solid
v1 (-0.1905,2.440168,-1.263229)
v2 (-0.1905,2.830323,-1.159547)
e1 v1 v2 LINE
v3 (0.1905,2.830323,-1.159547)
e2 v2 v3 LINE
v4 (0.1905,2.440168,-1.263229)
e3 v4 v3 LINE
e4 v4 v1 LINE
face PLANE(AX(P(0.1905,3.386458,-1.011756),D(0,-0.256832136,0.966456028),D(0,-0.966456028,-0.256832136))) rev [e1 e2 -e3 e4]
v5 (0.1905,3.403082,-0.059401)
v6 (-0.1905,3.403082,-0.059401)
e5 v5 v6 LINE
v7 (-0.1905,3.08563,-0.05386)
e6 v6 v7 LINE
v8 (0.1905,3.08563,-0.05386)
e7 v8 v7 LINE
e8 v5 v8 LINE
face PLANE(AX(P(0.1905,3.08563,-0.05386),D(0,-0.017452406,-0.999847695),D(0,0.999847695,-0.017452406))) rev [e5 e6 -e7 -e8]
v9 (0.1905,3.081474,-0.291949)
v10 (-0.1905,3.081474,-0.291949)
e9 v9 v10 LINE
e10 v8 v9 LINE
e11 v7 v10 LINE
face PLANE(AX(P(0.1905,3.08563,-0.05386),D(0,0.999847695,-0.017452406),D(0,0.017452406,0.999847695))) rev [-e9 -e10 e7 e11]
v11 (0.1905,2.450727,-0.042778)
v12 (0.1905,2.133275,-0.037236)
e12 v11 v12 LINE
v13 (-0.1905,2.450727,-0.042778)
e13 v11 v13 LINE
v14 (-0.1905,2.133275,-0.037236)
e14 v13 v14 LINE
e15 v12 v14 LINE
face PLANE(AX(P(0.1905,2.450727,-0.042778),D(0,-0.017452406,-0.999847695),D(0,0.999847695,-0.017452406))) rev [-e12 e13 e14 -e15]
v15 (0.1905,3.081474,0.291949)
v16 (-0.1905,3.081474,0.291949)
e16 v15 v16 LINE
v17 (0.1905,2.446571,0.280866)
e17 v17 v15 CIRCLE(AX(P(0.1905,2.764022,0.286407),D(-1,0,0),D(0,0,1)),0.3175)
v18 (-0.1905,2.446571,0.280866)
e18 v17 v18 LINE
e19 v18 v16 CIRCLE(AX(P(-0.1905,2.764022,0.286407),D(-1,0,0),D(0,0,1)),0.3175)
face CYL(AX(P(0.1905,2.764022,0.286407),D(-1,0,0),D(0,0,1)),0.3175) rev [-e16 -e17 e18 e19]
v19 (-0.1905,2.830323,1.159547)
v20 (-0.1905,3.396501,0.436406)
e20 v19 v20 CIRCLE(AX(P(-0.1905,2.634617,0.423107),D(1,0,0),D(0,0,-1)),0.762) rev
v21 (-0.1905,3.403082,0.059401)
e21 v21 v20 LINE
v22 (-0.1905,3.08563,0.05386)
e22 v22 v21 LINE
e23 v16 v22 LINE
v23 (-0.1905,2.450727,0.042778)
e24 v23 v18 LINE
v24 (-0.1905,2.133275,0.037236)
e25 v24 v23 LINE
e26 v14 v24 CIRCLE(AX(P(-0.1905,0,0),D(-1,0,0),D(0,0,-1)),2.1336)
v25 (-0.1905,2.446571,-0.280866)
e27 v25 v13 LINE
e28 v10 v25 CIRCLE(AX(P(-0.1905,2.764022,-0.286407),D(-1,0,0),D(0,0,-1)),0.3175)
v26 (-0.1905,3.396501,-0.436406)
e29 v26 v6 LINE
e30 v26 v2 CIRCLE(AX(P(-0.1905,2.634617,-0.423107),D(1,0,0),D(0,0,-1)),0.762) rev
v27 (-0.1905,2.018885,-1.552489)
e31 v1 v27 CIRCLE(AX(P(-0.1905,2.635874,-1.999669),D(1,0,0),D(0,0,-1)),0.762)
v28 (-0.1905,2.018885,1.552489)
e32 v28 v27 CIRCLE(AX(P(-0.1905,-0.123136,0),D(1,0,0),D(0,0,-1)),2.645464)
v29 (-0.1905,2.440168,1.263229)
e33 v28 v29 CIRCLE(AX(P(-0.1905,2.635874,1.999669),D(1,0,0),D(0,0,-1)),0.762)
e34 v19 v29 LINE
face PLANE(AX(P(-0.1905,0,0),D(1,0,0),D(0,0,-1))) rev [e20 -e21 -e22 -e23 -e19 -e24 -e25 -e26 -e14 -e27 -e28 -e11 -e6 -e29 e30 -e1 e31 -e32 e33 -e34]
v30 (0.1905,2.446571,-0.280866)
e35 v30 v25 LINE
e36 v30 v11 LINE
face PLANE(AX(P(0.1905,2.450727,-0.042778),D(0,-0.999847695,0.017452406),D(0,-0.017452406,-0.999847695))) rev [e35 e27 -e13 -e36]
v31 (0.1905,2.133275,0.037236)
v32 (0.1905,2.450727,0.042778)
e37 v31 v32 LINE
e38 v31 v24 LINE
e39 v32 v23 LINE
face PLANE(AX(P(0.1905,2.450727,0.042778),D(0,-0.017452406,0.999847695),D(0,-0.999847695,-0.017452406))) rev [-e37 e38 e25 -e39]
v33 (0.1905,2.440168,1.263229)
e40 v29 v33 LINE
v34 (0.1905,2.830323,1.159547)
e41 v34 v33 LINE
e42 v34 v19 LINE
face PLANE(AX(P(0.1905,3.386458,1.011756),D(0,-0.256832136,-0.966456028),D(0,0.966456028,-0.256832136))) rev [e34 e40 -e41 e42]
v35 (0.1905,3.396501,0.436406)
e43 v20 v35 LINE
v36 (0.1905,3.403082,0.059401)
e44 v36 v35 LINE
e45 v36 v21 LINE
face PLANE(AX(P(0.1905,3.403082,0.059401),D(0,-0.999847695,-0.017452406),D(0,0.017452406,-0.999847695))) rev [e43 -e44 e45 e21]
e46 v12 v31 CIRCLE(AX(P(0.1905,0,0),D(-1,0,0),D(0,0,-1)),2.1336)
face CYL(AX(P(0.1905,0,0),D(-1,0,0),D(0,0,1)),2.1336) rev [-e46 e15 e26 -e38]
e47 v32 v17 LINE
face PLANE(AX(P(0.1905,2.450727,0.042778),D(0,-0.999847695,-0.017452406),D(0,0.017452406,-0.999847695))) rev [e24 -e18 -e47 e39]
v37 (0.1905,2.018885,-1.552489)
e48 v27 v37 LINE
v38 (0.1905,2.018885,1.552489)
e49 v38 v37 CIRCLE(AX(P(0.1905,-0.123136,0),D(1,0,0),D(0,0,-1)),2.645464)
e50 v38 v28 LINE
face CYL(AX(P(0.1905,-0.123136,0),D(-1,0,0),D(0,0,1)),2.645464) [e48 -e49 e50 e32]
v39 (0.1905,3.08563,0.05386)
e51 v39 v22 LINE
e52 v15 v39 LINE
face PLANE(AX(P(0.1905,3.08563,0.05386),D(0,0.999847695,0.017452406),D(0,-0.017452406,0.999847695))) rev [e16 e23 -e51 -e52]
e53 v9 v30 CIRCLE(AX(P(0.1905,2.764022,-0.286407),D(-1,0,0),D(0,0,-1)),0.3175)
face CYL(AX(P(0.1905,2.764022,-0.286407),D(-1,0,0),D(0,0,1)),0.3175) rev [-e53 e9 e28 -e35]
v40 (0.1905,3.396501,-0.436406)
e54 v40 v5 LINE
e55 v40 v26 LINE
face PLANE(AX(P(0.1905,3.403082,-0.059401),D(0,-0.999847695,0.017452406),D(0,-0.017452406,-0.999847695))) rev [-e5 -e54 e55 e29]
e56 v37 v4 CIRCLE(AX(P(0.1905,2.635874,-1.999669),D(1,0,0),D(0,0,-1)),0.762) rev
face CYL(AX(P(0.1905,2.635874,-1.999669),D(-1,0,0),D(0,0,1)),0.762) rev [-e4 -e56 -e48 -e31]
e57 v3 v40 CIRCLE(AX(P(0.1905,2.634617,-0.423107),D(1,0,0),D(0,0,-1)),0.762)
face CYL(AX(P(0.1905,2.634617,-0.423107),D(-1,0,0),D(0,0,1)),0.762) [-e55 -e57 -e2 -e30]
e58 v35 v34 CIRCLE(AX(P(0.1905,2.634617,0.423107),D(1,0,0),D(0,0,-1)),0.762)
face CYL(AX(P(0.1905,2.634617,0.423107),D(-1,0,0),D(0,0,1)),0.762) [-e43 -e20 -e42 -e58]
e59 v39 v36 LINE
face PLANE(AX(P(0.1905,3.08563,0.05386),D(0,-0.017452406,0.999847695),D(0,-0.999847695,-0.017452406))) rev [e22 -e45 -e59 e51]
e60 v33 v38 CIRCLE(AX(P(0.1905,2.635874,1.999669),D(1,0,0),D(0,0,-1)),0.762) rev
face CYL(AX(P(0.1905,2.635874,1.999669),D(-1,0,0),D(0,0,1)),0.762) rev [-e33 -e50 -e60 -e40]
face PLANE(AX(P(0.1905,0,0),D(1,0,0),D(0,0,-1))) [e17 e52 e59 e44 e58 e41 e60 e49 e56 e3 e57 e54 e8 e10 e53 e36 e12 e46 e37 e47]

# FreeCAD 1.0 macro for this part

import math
import FreeCAD as App
import Part
import Sketcher

V = App.Vector
Q = App.Units.Quantity


def edges_at(feature, points):
    """Names of the edges that pass closest to the given points."""
    edges = feature.Shape.Edges
    near = lambda p: min(range(len(edges)), key=lambda i: edges[i].distToShape(Part.Vertex(*p))[0])
    return sorted({f"Edge{near(p) + 1}" for p in points})

doc = App.newDocument("Part")
body = doc.addObject("PartDesign::Body", "Body")

# Sketch on YZ plane
sketch1 = doc.addObject("Sketcher::SketchObject", "Sketch")
body.addObject(sketch1)
sketch1.AttachmentSupport = (doc.YZ_Plane, [""])
sketch1.MapMode = "FlatFace"
sketch1.addGeometry(Part.LineSegment(V(3.386458, -1.011756, 0), V(3.403082, -0.059401, 0)), False)
sketch1.addGeometry(Part.LineSegment(V(3.403082, -0.059401, 0), V(3.08563, -0.05386, 0)), False)
sketch1.addGeometry(Part.LineSegment(V(3.08563, -0.05386, 0), V(3.081474, -0.291949, 0)), False)
sketch1.addGeometry(Part.ArcOfCircle(Part.Circle(V(2.764022, -0.286407, 0), V(0, 0, 1), 0.3175), math.radians(179), math.radians(359)), False)
sketch1.addGeometry(Part.LineSegment(V(2.446571, -0.280866, 0), V(2.450727, -0.042778, 0)), False)
sketch1.addGeometry(Part.LineSegment(V(2.450727, -0.042778, 0), V(2.133275, -0.037236, 0)), False)
sketch1.addGeometry(Part.ArcOfCircle(Part.Circle(V(0, 0, 0), V(0, 0, 1), 2.1336), math.radians(1), math.radians(359)), False)
sketch1.addGeometry(Part.LineSegment(V(2.133275, 0.037236, 0), V(2.450727, 0.042778, 0)), False)
sketch1.addGeometry(Part.LineSegment(V(2.450727, 0.042778, 0), V(2.446571, 0.280866, 0)), False)
sketch1.addGeometry(Part.ArcOfCircle(Part.Circle(V(2.764022, 0.286407, 0), V(0, 0, 1), 0.3175), math.radians(1), math.radians(181)), False)
sketch1.addGeometry(Part.LineSegment(V(3.081474, 0.291949, 0), V(3.08563, 0.05386, 0)), False)
sketch1.addGeometry(Part.LineSegment(V(3.08563, 0.05386, 0), V(3.403082, 0.059401, 0)), False)
sketch1.addGeometry(Part.LineSegment(V(3.403082, 0.059401, 0), V(3.386458, 1.011756, 0)), False)
sketch1.addGeometry(Part.LineSegment(V(3.386458, 1.011756, 0), V(2.159059, 1.337933, 0)), False)
sketch1.addGeometry(Part.ArcOfCircle(Part.Circle(V(-0.123136, 0, 0), V(0, 0, 1), 2.645464), math.radians(30.380886), math.radians(329.619114)), False)
sketch1.addGeometry(Part.LineSegment(V(2.159059, -1.337933, 0), V(3.386458, -1.011756, 0)), False)
sketch1.addConstraint(Sketcher.Constraint("Coincident", 0, 2, 1, 1))
sketch1.addConstraint(Sketcher.Constraint("Coincident", 1, 2, 2, 1))
sketch1.addConstraint(Sketcher.Constraint("Tangent", 2, 2, 3, 2))
sketch1.addConstraint(Sketcher.Constraint("Tangent", 3, 1, 4, 1))
sketch1.addConstraint(Sketcher.Constraint("Coincident", 4, 2, 5, 1))
sketch1.addConstraint(Sketcher.Constraint("Coincident", 5, 2, 6, 2))
sketch1.addConstraint(Sketcher.Constraint("Coincident", 6, 1, 7, 1))
sketch1.addConstraint(Sketcher.Constraint("Coincident", 7, 2, 8, 1))
sketch1.addConstraint(Sketcher.Constraint("Tangent", 8, 2, 9, 2))
sketch1.addConstraint(Sketcher.Constraint("Tangent", 9, 1, 10, 1))
sketch1.addConstraint(Sketcher.Constraint("Coincident", 10, 2, 11, 1))
sketch1.addConstraint(Sketcher.Constraint("Coincident", 11, 2, 12, 1))
sketch1.addConstraint(Sketcher.Constraint("Coincident", 12, 2, 13, 1))
sketch1.addConstraint(Sketcher.Constraint("Coincident", 13, 2, 14, 1))
sketch1.addConstraint(Sketcher.Constraint("Coincident", 14, 2, 15, 1))
sketch1.addConstraint(Sketcher.Constraint("Coincident", 15, 2, 0, 1))
sketch1.addConstraint(Sketcher.Constraint("Coincident", 6, 3, -1, 1))
sketch1.addConstraint(Sketcher.Constraint("Equal", 3, 9))
sketch1.addConstraint(Sketcher.Constraint("Symmetric", 3, 3, 9, 3, -1))
sketch1.addConstraint(Sketcher.Constraint("Symmetric", 4, 2, 7, 2, -1))
sketch1.addConstraint(Sketcher.Constraint("Symmetric", 1, 2, 10, 2, -1))
sketch1.addConstraint(Sketcher.Constraint("Symmetric", 0, 2, 11, 2, -1))
sketch1.addConstraint(Sketcher.Constraint("Symmetric", 13, 2, 14, 2, -1))
sketch1.addConstraint(Sketcher.Constraint("Symmetric", 12, 2, 15, 2, -1))
sketch1.addConstraint(Sketcher.Constraint("Perpendicular", 0, 1))
sketch1.addConstraint(Sketcher.Constraint("Perpendicular", 1, 2))
sketch1.addConstraint(Sketcher.Constraint("Parallel", 2, 4))
sketch1.addConstraint(Sketcher.Constraint("Perpendicular", 4, 5))
sketch1.addConstraint(Sketcher.Constraint("Perpendicular", 7, 8))
sketch1.addConstraint(Sketcher.Constraint("Equal", 2, 4))
sketch1.addConstraint(Sketcher.Constraint("Equal", 1, 5))
sketch1.addConstraint(Sketcher.Constraint("Angle", 0, Q("89 deg")))
sketch1.addConstraint(Sketcher.Constraint("Radius", 6, Q("0.084 in")))
sketch1.addConstraint(Sketcher.Constraint("Radius", 3, Q("0.0125 in")))
sketch1.addConstraint(Sketcher.Constraint("Distance", 13, Q("0.05 in")))
sketch1.addConstraint(Sketcher.Constraint("Distance", 0, Q("0.0375 in")))
sketch1.addConstraint(Sketcher.Constraint("Distance", 1, Q("0.0125 in")))
sketch1.addConstraint(Sketcher.Constraint("Radius", 14, 2.645464))
sketch1.addConstraint(Sketcher.Constraint("DistanceY", 0, 2, -1, 1, 0.059401))
sketch1.addConstraint(Sketcher.Constraint("DistanceX", 13, 2, 12, 2, 1.227399))
sketch1.addConstraint(Sketcher.Constraint("DistanceY", 2, 2, -1, 1, 0.291949))
pad1 = doc.addObject("PartDesign::Pad", "Pad")
body.addObject(pad1)
pad1.Profile = sketch1
pad1.Length = Q("0.015 in")
pad1.Midplane = True
doc.recompute()

fillet = doc.addObject("PartDesign::Fillet", "Fillet")
body.addObject(fillet)
fillet.Base = (pad1, edges_at(pad1, [
    (0, 3.386, -1.012),
    (0, 2.159, -1.338),
    (0, 2.159, 1.338),
    (0, 3.386, 1.012),
]))
fillet.Radius = Q("0.03 in")

doc.recompute()
